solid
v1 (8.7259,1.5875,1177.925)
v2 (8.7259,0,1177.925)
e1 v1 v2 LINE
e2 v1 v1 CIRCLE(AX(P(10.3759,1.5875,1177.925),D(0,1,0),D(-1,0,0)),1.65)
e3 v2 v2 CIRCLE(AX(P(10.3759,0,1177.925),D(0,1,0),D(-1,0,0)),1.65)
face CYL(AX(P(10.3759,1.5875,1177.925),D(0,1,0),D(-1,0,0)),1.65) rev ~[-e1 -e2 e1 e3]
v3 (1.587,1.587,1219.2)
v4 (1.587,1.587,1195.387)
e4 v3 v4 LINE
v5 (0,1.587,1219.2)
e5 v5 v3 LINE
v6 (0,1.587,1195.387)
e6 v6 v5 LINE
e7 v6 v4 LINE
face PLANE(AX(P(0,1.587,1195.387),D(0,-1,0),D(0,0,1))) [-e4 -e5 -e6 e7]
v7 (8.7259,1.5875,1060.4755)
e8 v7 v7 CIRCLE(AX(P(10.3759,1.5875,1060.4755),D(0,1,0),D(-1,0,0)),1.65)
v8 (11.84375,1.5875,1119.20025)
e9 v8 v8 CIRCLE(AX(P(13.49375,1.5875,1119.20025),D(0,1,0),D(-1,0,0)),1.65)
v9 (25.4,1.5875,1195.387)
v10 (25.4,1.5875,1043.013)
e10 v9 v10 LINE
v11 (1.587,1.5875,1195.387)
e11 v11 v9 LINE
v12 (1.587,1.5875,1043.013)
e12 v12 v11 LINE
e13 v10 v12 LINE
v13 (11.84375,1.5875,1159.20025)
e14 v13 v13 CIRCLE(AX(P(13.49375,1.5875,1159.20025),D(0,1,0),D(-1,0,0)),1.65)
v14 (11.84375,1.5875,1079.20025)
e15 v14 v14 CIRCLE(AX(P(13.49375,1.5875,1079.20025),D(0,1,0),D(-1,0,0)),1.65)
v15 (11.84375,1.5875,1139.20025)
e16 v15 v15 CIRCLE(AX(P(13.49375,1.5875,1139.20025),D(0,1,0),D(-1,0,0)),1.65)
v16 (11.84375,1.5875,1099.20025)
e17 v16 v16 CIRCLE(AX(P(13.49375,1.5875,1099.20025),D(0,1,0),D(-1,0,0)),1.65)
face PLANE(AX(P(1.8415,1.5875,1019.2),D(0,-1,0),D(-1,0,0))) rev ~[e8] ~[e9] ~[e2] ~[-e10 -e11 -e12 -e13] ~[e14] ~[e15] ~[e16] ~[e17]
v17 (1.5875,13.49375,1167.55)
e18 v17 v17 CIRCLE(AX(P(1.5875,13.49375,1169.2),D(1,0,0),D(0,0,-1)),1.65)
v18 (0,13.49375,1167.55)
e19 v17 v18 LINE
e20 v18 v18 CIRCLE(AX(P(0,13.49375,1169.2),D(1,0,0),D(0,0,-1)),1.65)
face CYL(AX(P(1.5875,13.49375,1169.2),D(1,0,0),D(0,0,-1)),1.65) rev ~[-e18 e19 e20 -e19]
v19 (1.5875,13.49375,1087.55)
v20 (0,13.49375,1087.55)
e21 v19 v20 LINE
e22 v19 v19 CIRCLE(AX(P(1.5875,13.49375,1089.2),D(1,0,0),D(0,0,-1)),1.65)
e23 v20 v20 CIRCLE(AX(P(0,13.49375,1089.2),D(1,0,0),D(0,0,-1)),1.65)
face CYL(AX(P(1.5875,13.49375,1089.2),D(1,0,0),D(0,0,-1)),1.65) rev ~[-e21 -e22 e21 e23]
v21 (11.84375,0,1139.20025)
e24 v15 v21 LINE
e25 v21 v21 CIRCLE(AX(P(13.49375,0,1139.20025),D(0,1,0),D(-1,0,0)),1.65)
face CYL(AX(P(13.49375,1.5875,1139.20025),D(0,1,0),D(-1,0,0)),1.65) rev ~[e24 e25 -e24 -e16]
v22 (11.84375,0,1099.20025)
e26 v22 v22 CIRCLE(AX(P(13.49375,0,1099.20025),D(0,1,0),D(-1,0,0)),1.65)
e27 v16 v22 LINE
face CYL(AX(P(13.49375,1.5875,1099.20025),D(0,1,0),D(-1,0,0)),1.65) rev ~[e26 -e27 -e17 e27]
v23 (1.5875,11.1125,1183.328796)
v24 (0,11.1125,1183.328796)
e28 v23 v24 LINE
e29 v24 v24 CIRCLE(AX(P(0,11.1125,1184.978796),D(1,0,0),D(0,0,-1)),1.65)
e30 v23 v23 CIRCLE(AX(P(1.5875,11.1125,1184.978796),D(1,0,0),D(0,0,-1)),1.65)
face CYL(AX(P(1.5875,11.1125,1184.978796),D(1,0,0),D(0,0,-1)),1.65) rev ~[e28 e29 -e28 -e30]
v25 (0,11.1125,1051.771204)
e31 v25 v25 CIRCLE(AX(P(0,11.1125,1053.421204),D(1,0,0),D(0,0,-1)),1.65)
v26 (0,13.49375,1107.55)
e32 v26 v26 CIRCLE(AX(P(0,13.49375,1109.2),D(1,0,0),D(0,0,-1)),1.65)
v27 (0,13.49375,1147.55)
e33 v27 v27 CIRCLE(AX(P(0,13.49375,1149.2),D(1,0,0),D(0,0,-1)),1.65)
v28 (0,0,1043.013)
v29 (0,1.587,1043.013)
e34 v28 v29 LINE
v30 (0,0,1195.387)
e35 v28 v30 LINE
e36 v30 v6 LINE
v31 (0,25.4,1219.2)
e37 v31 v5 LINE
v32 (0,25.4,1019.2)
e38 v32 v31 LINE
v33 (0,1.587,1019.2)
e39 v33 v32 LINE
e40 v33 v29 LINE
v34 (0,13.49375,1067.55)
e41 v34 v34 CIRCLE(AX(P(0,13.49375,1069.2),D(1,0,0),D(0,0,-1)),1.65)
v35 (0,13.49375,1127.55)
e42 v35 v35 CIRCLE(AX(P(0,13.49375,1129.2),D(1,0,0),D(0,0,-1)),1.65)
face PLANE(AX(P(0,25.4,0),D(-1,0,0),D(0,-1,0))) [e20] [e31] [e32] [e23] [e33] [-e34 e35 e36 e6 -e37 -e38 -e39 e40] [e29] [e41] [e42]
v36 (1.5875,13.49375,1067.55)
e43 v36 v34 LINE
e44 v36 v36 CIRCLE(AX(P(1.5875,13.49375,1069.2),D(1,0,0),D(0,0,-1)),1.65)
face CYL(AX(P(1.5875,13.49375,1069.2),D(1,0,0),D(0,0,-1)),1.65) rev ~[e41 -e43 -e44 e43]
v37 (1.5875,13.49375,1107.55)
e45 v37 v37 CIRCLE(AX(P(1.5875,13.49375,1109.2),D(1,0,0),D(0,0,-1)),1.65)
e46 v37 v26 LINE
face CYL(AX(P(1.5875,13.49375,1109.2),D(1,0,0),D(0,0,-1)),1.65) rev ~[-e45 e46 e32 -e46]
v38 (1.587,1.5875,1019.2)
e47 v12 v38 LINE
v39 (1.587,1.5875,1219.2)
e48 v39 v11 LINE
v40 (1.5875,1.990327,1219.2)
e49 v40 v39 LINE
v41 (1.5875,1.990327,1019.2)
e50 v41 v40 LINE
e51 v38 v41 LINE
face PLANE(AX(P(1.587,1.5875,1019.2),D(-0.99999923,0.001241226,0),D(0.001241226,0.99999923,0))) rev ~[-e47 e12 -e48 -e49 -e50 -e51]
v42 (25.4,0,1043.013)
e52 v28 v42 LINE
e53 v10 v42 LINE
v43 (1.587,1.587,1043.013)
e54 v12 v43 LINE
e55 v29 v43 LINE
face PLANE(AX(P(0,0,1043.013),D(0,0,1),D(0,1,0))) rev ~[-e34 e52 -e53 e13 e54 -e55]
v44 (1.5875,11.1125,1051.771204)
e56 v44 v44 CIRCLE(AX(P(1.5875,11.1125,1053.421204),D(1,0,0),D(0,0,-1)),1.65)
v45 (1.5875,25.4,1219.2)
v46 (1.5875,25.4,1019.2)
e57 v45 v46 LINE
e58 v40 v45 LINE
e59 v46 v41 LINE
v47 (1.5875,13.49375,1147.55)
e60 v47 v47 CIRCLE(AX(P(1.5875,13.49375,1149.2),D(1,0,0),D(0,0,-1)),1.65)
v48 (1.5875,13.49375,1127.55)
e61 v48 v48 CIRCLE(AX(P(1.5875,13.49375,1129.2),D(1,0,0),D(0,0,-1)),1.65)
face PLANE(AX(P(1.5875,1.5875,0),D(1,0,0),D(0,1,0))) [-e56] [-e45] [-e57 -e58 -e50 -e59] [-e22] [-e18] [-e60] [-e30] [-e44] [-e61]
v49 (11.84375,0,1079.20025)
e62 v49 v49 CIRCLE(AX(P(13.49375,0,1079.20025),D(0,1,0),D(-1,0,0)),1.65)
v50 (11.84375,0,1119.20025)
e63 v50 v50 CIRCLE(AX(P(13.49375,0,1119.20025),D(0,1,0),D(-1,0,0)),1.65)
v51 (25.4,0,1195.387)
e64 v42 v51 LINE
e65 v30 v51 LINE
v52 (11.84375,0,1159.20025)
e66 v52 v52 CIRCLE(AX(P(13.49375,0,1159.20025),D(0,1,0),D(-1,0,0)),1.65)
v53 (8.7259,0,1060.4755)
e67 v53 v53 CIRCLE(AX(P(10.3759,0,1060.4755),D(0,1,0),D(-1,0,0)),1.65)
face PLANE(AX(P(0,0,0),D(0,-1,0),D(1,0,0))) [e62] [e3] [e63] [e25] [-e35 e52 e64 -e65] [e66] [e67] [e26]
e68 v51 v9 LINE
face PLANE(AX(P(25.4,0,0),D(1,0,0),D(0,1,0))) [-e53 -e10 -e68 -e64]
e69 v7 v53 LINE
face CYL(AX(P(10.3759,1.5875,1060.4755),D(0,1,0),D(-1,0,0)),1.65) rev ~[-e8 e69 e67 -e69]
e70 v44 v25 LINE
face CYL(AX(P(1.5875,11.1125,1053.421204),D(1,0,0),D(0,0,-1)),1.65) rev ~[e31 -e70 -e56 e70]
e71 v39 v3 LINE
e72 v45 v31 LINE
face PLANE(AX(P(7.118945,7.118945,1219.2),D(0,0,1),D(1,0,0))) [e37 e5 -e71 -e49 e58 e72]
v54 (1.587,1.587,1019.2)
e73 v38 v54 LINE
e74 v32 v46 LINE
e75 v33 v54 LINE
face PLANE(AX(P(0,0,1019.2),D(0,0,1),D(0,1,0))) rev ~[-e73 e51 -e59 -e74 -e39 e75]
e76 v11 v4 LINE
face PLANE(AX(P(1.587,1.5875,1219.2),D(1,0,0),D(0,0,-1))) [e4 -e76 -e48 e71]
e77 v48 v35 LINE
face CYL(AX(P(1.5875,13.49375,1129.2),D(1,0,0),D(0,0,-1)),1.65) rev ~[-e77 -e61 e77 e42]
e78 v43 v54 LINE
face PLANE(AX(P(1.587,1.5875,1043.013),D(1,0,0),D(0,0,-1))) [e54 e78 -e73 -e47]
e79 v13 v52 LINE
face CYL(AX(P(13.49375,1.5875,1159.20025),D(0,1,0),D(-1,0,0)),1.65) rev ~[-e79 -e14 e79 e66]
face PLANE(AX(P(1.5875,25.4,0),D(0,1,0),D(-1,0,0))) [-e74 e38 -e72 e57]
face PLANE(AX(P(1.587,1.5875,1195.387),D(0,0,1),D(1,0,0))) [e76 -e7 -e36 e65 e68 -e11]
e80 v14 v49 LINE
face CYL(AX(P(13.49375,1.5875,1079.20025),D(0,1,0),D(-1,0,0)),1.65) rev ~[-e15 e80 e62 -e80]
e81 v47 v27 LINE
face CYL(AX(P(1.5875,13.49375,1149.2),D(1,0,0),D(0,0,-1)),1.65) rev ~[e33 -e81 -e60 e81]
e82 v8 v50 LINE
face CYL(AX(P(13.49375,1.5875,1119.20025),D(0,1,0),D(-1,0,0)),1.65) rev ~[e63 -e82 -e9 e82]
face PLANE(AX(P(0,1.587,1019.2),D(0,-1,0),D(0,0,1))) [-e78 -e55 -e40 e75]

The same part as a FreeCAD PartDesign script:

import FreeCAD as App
import Part
import Sketcher
Q = App.Units.Quantity


def edges_at(feature, points):
    """Names of the edges that pass closest to the given points."""
    edges = feature.Shape.Edges
    near = lambda p: min(range(len(edges)), key=lambda i: edges[i].distToShape(Part.Vertex(*p))[0])
    return sorted({f"Edge{near(p) + 1}" for p in points})

doc = App.newDocument("Part")
body = doc.addObject("PartDesign::Body", "Body")

# Sketch on XY plane
sketch1 = body.newObject("Sketcher::SketchObject", "Sketch")
sketch1.AttachmentSupport = (doc.getObject("XY_Plane"), [""])
sketch1.MapMode = "FlatFace"
sketch1.addGeometry([
    Part.LineSegment(App.Vector(1.6, 25.4, 0), App.Vector(0, 25.4, 0)),  # 0
    Part.LineSegment(App.Vector(0, 25.4, 0), App.Vector(0, 0, 0)),  # 1
    Part.LineSegment(App.Vector(0, 0, 0), App.Vector(25.4, 0, 0)),  # 2
    Part.LineSegment(App.Vector(25.4, 0, 0), App.Vector(25.4, 1.6, 0)),  # 3
    Part.LineSegment(App.Vector(25.4, 1.6, 0), App.Vector(1.6, 1.6, 0)),  # 4
    Part.LineSegment(App.Vector(1.6, 1.6, 0), App.Vector(1.6, 25.4, 0)),  # 5
], False)
sketch1.addConstraint([
    Sketcher.Constraint("Coincident", 0, 2, 1, 1),
    Sketcher.Constraint("Coincident", 1, 2, 2, 1),
    Sketcher.Constraint("Coincident", 2, 2, 3, 1),
    Sketcher.Constraint("Coincident", 3, 2, 4, 1),
    Sketcher.Constraint("Coincident", 4, 2, 5, 1),
    Sketcher.Constraint("Coincident", 5, 2, 0, 1),
    Sketcher.Constraint("Horizontal", 0),
    Sketcher.Constraint("Vertical", 1),
    Sketcher.Constraint("Horizontal", 2),
    Sketcher.Constraint("Vertical", 3),
    Sketcher.Constraint("Horizontal", 4),
    Sketcher.Constraint("Vertical", 5),
    Sketcher.Constraint("Coincident", 1, 2, -1, 1),
    Sketcher.Constraint("Equal", 2, 1),
    Sketcher.Constraint("Equal", 0, 3),
    Sketcher.Constraint("DistanceX", 2, 1, 2, 2, Q("1 in")),
    Sketcher.Constraint("DistanceX", 0, 2, 0, 1, Q("0.0625 in")),
])
pad1 = body.newObject("PartDesign::Pad", "Pad")
pad1.Profile = sketch1
pad1.Length = Q("96 in")
pad1.Midplane = True
doc.recompute()

fillet = body.newObject("PartDesign::Fillet", "Fillet")
fillet.Base = (pad1, edges_at(pad1, [(1.587, 1.587, 0)]))
fillet.Radius = Q("0.01 in")

# Sketch on YZ plane
sketch2 = body.newObject("Sketcher::SketchObject", "Sketch001")
sketch2.AttachmentSupport = (doc.getObject("YZ_Plane"), [""])
sketch2.MapMode = "FlatFace"
sketch2.addGeometry([
    Part.LineSegment(App.Vector(75, -1219, 0), App.Vector(0, -1219, 0)),
    Part.LineSegment(App.Vector(0, -1219, 0), App.Vector(0, 1019, 0)),
    Part.LineSegment(App.Vector(0, 1019, 0), App.Vector(75, 1019, 0)),
    Part.LineSegment(App.Vector(75, 1019, 0), App.Vector(75, -1219, 0)),
], False)
sketch2.addConstraint([
    Sketcher.Constraint("Coincident", 0, 2, 1, 1),
    Sketcher.Constraint("Coincident", 1, 2, 2, 1),
    Sketcher.Constraint("Coincident", 2, 2, 3, 1),
    Sketcher.Constraint("Coincident", 3, 2, 0, 1),
    Sketcher.Constraint("Horizontal", 0),
    Sketcher.Constraint("Vertical", 1),
    Sketcher.Constraint("Horizontal", 2),
    Sketcher.Constraint("Vertical", 3),
    Sketcher.Constraint("PointOnObject", 0, 2, -2),
    Sketcher.Constraint("DistanceY", 0, 2, -1, 1, Q("48 in")),
    Sketcher.Constraint("DistanceY", 1, 1, 1, 2, Q("2238.4 mm")),
    Sketcher.Constraint("DistanceX", 0, 2, 0, 1, Q("74.945321 mm")),
])
pocket1 = body.newObject("PartDesign::Pocket", "Pocket")
pocket1.Profile = sketch2
pocket1.Length = 60
pocket1.Reversed = True

# Sketch on XZ plane
sketch3 = body.newObject("Sketcher::SketchObject", "Sketch002")
sketch3.AttachmentSupport = (doc.getObject("XZ_Plane"), [""])
sketch3.MapMode = "FlatFace"
sketch3.AttachmentOffset = App.Placement(App.Vector(0, 0, -0.0625 * 25.4), App.Rotation())
sketch3.addGeometry([
    Part.LineSegment(App.Vector(2, 1195, 0), App.Vector(2, 1219, 0)),  # 0
    Part.LineSegment(App.Vector(2, 1219, 0), App.Vector(25, 1219, 0)),  # 1
    Part.LineSegment(App.Vector(25, 1219, 0), App.Vector(25, 1195, 0)),  # 2
    Part.LineSegment(App.Vector(25, 1195, 0), App.Vector(2, 1195, 0)),  # 3
    Part.LineSegment(App.Vector(2, 1019, 0), App.Vector(2, 1043, 0)),  # 4
    Part.LineSegment(App.Vector(2, 1043, 0), App.Vector(25, 1043, 0)),  # 5
    Part.LineSegment(App.Vector(25, 1043, 0), App.Vector(25, 1019, 0)),  # 6
    Part.LineSegment(App.Vector(25, 1019, 0), App.Vector(2, 1019, 0)),  # 7
], False)
sketch3.addConstraint([
    Sketcher.Constraint("Coincident", 0, 2, 1, 1),
    Sketcher.Constraint("Coincident", 1, 2, 2, 1),
    Sketcher.Constraint("Coincident", 2, 2, 3, 1),
    Sketcher.Constraint("Coincident", 3, 2, 0, 1),
    Sketcher.Constraint("Coincident", 4, 2, 5, 1),
    Sketcher.Constraint("Coincident", 5, 2, 6, 1),
    Sketcher.Constraint("Coincident", 6, 2, 7, 1),
    Sketcher.Constraint("Coincident", 7, 2, 4, 1),
    Sketcher.Constraint("Vertical", 0),
    Sketcher.Constraint("Horizontal", 1),
    Sketcher.Constraint("Vertical", 2),
    Sketcher.Constraint("Horizontal", 3),
    Sketcher.Constraint("Vertical", 4),
    Sketcher.Constraint("Horizontal", 5),
    Sketcher.Constraint("Vertical", 6),
    Sketcher.Constraint("Horizontal", 7),
    Sketcher.Constraint("Vertical", 3, 2, 4, 2),
    Sketcher.Constraint("Vertical", 2, 2, 5, 2),
    Sketcher.Constraint("Equal", 7, 0),
    Sketcher.Constraint("Equal", 2, 4),
    Sketcher.Constraint("DistanceY", -1, 1, 0, 2, Q("48 in")),
    Sketcher.Constraint("DistanceX", -1, 1, 1, 2, Q("1 in")),
    Sketcher.Constraint("DistanceX", 1, 1, 1, 2, Q("23.813 mm")),
    Sketcher.Constraint("DistanceY", -1, 1, 4, 2, Q("1043.013 mm")),
])
pocket2 = body.newObject("PartDesign::Pocket", "Pocket001")
pocket2.Profile = sketch3
pocket2.Length = 28.313
pocket2.Reversed = True

# Sketch on XY plane
sketch4 = body.newObject("Sketcher::SketchObject", "Sketch003")
sketch4.AttachmentSupport = (doc.getObject("XY_Plane"), [""])
sketch4.MapMode = "FlatFace"
sketch4.AttachmentOffset = App.Placement(App.Vector(0, 0, 1019.2), App.Rotation())
sketch4.addGeometry([
    Part.LineSegment(App.Vector(1.84, 1.59, 0), App.Vector(1.59, 1.59, 0)),
    Part.LineSegment(App.Vector(1.59, 1.59, 0), App.Vector(1.59, 1.99, 0)),
    Part.LineSegment(App.Vector(1.59, 1.99, 0), App.Vector(1.84, 1.99, 0)),
    Part.LineSegment(App.Vector(1.84, 1.99, 0), App.Vector(1.84, 1.59, 0)),
], False)
sketch4.addConstraint([
    Sketcher.Constraint("Coincident", 0, 2, 1, 1),
    Sketcher.Constraint("Coincident", 1, 2, 2, 1),
    Sketcher.Constraint("Coincident", 2, 2, 3, 1),
    Sketcher.Constraint("Coincident", 3, 2, 0, 1),
    Sketcher.Constraint("Horizontal", 0),
    Sketcher.Constraint("Horizontal", 2),
    Sketcher.Constraint("Vertical", 3),
    Sketcher.Constraint("DistanceX", 2, 1, 2, 2, Q("0.01 in")),
    Sketcher.Constraint("DistanceY", -1, 1, 0, 2, Q("0.0625 in")),
    Sketcher.Constraint("DistanceX", -1, 1, 1, 2, Q("0.0625 in")),
    Sketcher.Constraint("DistanceX", 0, 2, 0, 1, Q("0.2545 mm")),
    Sketcher.Constraint("DistanceY", 3, 2, 3, 1, Q("0.402827 mm")),
])
pocket3 = body.newObject("PartDesign::Pocket", "Pocket002")
pocket3.Profile = sketch4
pocket3.Length = 228.313
pocket3.Reversed = True

# Sketch on YZ plane
sketch5 = body.newObject("Sketcher::SketchObject", "Sketch004")
sketch5.AttachmentSupport = (doc.getObject("YZ_Plane"), [""])
sketch5.MapMode = "FlatFace"
sketch5.addGeometry([
    Part.LineSegment(App.Vector(1.6, 1195.4, 0), App.Vector(0, 1195.4, 0)),  # 0
    Part.LineSegment(App.Vector(0, 1195.4, 0), App.Vector(0, 1219.2, 0)),  # 1
    Part.LineSegment(App.Vector(0, 1219.2, 0), App.Vector(1.6, 1219.2, 0)),  # 2
    Part.LineSegment(App.Vector(1.6, 1219.2, 0), App.Vector(1.6, 1195.4, 0)),  # 3
    Part.LineSegment(App.Vector(1.6, 1019.2, 0), App.Vector(0, 1019.2, 0)),  # 4
    Part.LineSegment(App.Vector(0, 1019.2, 0), App.Vector(0, 1043, 0)),  # 5
    Part.LineSegment(App.Vector(0, 1043, 0), App.Vector(1.6, 1043, 0)),  # 6
    Part.LineSegment(App.Vector(1.6, 1043, 0), App.Vector(1.6, 1019.2, 0)),  # 7
], False)
sketch5.addConstraint([
    Sketcher.Constraint("Coincident", 0, 2, 1, 1),
    Sketcher.Constraint("Coincident", 1, 2, 2, 1),
    Sketcher.Constraint("Coincident", 2, 2, 3, 1),
    Sketcher.Constraint("Coincident", 3, 2, 0, 1),
    Sketcher.Constraint("Coincident", 4, 2, 5, 1),
    Sketcher.Constraint("Coincident", 5, 2, 6, 1),
    Sketcher.Constraint("Coincident", 6, 2, 7, 1),
    Sketcher.Constraint("Coincident", 7, 2, 4, 1),
    Sketcher.Constraint("Horizontal", 0),
    Sketcher.Constraint("Vertical", 1),
    Sketcher.Constraint("Horizontal", 2),
    Sketcher.Constraint("Vertical", 3),
    Sketcher.Constraint("Horizontal", 4),
    Sketcher.Constraint("Vertical", 5),
    Sketcher.Constraint("Horizontal", 6),
    Sketcher.Constraint("Vertical", 7),
    Sketcher.Constraint("PointOnObject", 0, 2, -2),
    Sketcher.Constraint("PointOnObject", 4, 2, -2),
    Sketcher.Constraint("Vertical", 3, 2, 6, 2),
    Sketcher.Constraint("Equal", 3, 5),
    Sketcher.Constraint("DistanceY", -1, 1, 1, 2, Q("48 in")),
    Sketcher.Constraint("DistanceX", 0, 2, 0, 1, Q("1.587 mm")),
    Sketcher.Constraint("DistanceY", 1, 1, 1, 2, Q("23.813 mm")),
    Sketcher.Constraint("DistanceY", -1, 1, 4, 2, Q("1019.2 mm")),
])
pocket4 = body.newObject("PartDesign::Pocket", "Pocket003")
pocket4.Profile = sketch5
pocket4.Length = 228.313
pocket4.Reversed = True

# Sketch on XZ plane
sketch6 = body.newObject("Sketcher::SketchObject", "Sketch005")
sketch6.AttachmentSupport = (doc.getObject("XZ_Plane"), [""])
sketch6.MapMode = "FlatFace"
sketch6.AttachmentOffset = App.Placement(App.Vector(0, 0, -0.0625 * 25.4), App.Rotation())
sketch6.addGeometry([
    Part.Circle(App.Vector(10.4, 1177.9, 0), App.Vector(0, 0, 1), 1.6),  # 0
    Part.Circle(App.Vector(10.4, 1060.5, 0), App.Vector(0, 0, 1), 1.6),  # 1
    Part.Circle(App.Vector(13.5, 1079.2, 0), App.Vector(0, 0, 1), 1.6),  # 2
    Part.Circle(App.Vector(13.5, 1099.2, 0), App.Vector(0, 0, 1), 1.6),  # 3
    Part.Circle(App.Vector(13.5, 1119.2, 0), App.Vector(0, 0, 1), 1.6),  # 4
    Part.Circle(App.Vector(13.5, 1139.2, 0), App.Vector(0, 0, 1), 1.6),  # 5
    Part.Circle(App.Vector(13.5, 1159.2, 0), App.Vector(0, 0, 1), 1.6),  # 6
], False)
sketch6.addConstraint([
    Sketcher.Constraint("Equal", 0, 1),
    Sketcher.Constraint("Equal", 1, 2),
    Sketcher.Constraint("Equal", 2, 3),
    Sketcher.Constraint("Equal", 3, 4),
    Sketcher.Constraint("Equal", 4, 5),
    Sketcher.Constraint("Equal", 5, 6),
    Sketcher.Constraint("Vertical", 0, 3, 1, 3),
    Sketcher.Constraint("Vertical", 2, 3, 3, 3),
    Sketcher.Constraint("Vertical", 3, 3, 4, 3),
    Sketcher.Constraint("Vertical", 4, 3, 5, 3),
    Sketcher.Constraint("Vertical", 5, 3, 6, 3),
    Sketcher.Constraint("Diameter", 0, Q("3.3 mm")),
    Sketcher.Constraint("DistanceY", -1, 1, 0, 3, Q("46.375 in")),
    Sketcher.Constraint("DistanceX", -1, 1, 2, 3, Q("0.53125 in")),
    Sketcher.Constraint("DistanceX", -1, 1, 0, 3, Q("0.4085 in")),
    Sketcher.Constraint("DistanceY", -1, 1, 1, 3, Q("1060.4755 mm")),
    Sketcher.Constraint("DistanceY", 2, 3, 3, 3, Q("20 mm")),
    Sketcher.Constraint("DistanceY", 3, 3, 4, 3, Q("20 mm")),
    Sketcher.Constraint("DistanceY", 4, 3, 5, 3, Q("20 mm")),
    Sketcher.Constraint("DistanceY", 5, 3, 6, 3, Q("20 mm")),
    Sketcher.Constraint("DistanceY", -1, 1, 2, 3, Q("1079.20025 mm")),
])
pocket5 = body.newObject("PartDesign::Pocket", "Pocket004")
pocket5.Profile = sketch6
pocket5.Length = 60
pocket5.Reversed = True

# Sketch on YZ plane
sketch7 = body.newObject("Sketcher::SketchObject", "Sketch006")
sketch7.AttachmentSupport = (doc.getObject("YZ_Plane"), [""])
sketch7.MapMode = "FlatFace"
sketch7.AttachmentOffset = App.Placement(App.Vector(0, 0, 0.0625 * 25.4), App.Rotation())
sketch7.addGeometry([
    Part.Circle(App.Vector(11.1, 1185, 0), App.Vector(0, 0, 1), 1.6),  # 0
    Part.Circle(App.Vector(11.1, 1053.4, 0), App.Vector(0, 0, 1), 1.6),  # 1
    Part.Circle(App.Vector(13.5, 1069.2, 0), App.Vector(0, 0, 1), 1.6),  # 2
    Part.Circle(App.Vector(13.5, 1089.2, 0), App.Vector(0, 0, 1), 1.6),  # 3
    Part.Circle(App.Vector(13.5, 1109.2, 0), App.Vector(0, 0, 1), 1.6),  # 4
    Part.Circle(App.Vector(13.5, 1129.2, 0), App.Vector(0, 0, 1), 1.6),  # 5
    Part.Circle(App.Vector(13.5, 1149.2, 0), App.Vector(0, 0, 1), 1.6),  # 6
    Part.Circle(App.Vector(13.5, 1169.2, 0), App.Vector(0, 0, 1), 1.6),  # 7
], False)
sketch7.addConstraint([
    Sketcher.Constraint("Equal", 0, 1),
    Sketcher.Constraint("Equal", 1, 2),
    Sketcher.Constraint("Equal", 2, 3),
    Sketcher.Constraint("Equal", 3, 4),
    Sketcher.Constraint("Equal", 4, 5),
    Sketcher.Constraint("Equal", 5, 6),
    Sketcher.Constraint("Equal", 6, 7),
    Sketcher.Constraint("Vertical", 0, 3, 1, 3),
    Sketcher.Constraint("Vertical", 2, 3, 3, 3),
    Sketcher.Constraint("Vertical", 3, 3, 4, 3),
    Sketcher.Constraint("Vertical", 4, 3, 5, 3),
    Sketcher.Constraint("Vertical", 5, 3, 6, 3),
    Sketcher.Constraint("Vertical", 6, 3, 7, 3),
    Sketcher.Constraint("Diameter", 0, Q("3.3 mm")),
    Sketcher.Constraint("DistanceX", -1, 1, 0, 3, Q("0.4375 in")),
    Sketcher.Constraint("DistanceX", -1, 1, 2, 3, Q("0.53125 in")),
    Sketcher.Constraint("DistanceY", -1, 1, 2, 3, Q("1069.2 mm")),
    Sketcher.Constraint("DistanceY", -1, 1, 3, 3, Q("1089.2 mm")),
    Sketcher.Constraint("DistanceY", -1, 1, 4, 3, Q("1109.2 mm")),
    Sketcher.Constraint("DistanceY", -1, 1, 5, 3, Q("1129.2 mm")),
    Sketcher.Constraint("DistanceY", -1, 1, 6, 3, Q("1149.2 mm")),
    Sketcher.Constraint("DistanceY", -1, 1, 7, 3, Q("1169.2 mm")),
    Sketcher.Constraint("DistanceY", 1, 3, 0, 3, Q("131.557591 mm")),
    Sketcher.Constraint("DistanceY", -1, 1, 0, 3, Q("1184.978796 mm")),
])
pocket6 = body.newObject("PartDesign::Pocket", "Pocket005")
pocket6.Profile = sketch7
pocket6.Length = 60

doc.recompute()
